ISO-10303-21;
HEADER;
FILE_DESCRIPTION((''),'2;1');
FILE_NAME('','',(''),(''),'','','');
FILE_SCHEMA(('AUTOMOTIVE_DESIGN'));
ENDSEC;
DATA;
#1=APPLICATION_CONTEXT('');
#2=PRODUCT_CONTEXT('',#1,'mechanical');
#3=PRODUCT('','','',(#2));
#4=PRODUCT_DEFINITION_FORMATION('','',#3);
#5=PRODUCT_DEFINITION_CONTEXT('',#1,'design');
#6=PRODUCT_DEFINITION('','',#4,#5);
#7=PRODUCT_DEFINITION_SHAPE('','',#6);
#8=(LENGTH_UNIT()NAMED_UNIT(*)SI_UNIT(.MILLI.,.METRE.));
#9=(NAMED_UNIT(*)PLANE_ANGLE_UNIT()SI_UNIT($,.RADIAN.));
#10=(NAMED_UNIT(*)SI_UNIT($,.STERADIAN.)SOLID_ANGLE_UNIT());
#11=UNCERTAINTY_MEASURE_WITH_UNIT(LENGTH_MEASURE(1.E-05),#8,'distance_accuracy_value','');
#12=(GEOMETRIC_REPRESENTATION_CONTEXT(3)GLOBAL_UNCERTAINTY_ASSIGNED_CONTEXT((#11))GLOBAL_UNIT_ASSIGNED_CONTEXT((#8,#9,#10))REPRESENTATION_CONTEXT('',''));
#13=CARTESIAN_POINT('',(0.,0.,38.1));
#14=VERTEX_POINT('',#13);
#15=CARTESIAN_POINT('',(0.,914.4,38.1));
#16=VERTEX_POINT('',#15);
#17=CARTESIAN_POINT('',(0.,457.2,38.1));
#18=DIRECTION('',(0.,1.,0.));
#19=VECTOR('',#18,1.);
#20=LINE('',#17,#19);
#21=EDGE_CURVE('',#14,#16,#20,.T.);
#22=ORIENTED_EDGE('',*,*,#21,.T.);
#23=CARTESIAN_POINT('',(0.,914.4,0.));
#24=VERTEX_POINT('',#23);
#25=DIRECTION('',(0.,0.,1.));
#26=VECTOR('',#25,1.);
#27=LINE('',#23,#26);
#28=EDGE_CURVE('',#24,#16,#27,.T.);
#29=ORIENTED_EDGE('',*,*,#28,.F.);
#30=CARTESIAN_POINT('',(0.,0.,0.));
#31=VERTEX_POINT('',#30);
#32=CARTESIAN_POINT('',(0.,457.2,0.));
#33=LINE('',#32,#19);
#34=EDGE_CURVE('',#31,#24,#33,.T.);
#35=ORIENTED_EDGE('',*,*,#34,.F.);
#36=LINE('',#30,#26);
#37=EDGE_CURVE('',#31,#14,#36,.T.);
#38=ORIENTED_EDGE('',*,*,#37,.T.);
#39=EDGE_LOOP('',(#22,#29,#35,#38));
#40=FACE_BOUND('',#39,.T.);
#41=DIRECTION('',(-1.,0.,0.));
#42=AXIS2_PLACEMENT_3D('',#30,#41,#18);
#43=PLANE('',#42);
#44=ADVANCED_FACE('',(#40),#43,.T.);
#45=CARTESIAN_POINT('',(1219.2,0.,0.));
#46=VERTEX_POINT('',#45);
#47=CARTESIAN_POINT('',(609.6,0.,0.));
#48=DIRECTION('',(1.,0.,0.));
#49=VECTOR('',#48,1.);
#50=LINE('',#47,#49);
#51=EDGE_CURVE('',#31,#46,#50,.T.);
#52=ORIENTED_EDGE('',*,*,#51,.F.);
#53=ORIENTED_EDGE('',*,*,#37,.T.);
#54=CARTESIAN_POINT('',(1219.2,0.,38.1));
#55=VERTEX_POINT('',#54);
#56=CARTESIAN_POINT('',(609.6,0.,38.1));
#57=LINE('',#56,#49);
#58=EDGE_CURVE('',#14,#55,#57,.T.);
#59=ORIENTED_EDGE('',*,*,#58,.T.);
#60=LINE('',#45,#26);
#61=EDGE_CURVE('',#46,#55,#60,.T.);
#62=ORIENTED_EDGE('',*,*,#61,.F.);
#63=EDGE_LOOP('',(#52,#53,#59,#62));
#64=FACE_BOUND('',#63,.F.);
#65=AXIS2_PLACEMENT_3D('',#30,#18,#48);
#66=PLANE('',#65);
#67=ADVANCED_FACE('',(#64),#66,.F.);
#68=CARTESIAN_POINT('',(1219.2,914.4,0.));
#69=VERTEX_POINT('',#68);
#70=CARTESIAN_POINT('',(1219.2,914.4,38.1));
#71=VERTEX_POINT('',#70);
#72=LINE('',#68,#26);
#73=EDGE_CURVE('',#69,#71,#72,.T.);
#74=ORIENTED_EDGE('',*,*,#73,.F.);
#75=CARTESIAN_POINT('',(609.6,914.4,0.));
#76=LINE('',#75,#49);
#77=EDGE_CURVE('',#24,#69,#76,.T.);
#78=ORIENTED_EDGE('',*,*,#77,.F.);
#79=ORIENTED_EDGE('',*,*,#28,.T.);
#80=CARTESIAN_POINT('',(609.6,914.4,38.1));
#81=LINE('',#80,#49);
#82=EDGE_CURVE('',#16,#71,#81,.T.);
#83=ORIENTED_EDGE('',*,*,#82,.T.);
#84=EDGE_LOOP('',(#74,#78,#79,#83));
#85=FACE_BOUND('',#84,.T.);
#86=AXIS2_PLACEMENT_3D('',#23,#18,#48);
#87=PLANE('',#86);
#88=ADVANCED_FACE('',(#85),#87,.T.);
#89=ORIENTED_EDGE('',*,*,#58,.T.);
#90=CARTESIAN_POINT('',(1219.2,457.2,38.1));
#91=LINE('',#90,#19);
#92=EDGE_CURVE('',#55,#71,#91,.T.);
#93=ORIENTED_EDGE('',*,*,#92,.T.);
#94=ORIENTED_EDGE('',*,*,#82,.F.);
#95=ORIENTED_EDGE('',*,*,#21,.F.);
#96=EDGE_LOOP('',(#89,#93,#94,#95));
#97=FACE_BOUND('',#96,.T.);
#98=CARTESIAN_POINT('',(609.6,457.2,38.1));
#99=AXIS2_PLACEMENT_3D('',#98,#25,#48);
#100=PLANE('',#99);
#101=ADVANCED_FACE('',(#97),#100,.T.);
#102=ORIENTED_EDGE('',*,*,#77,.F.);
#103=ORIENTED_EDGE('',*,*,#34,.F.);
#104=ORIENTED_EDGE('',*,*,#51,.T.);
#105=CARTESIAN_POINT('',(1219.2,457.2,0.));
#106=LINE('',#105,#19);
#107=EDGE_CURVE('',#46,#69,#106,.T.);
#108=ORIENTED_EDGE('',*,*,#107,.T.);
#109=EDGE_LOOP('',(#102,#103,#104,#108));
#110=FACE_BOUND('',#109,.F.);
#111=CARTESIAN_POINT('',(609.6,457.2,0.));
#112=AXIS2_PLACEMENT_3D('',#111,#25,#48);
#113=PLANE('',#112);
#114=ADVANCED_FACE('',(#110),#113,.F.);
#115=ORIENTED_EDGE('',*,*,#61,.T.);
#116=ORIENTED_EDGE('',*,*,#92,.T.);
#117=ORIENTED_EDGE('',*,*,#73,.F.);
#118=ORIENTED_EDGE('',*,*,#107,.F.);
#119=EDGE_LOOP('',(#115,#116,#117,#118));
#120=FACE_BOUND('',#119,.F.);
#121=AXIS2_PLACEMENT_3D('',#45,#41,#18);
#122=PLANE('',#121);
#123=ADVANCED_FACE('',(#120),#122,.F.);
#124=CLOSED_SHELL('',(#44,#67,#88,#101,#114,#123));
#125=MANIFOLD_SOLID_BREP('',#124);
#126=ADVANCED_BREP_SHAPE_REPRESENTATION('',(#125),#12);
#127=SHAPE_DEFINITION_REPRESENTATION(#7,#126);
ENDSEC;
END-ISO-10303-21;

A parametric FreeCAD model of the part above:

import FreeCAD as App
import Part
import Sketcher

V = App.Vector
Q = App.Units.Quantity

doc = App.newDocument("Part")
body = doc.addObject("PartDesign::Body", "Body")

sketch1 = doc.addObject("Sketcher::SketchObject", "Sketch")
body.addObject(sketch1)
sketch1.AttachmentSupport = (doc.XY_Plane, [""])
sketch1.MapMode = "FlatFace"
sketch1.addGeometry(Part.LineSegment(V(0, 0, 0), V(0, -89, 0)), False)
sketch1.addGeometry(Part.LineSegment(V(0, -89, 0), V(1829, -89, 0)), False)
sketch1.addGeometry(Part.LineSegment(V(1829, -89, 0), V(1829, 0, 0)), False)
sketch1.addGeometry(Part.LineSegment(V(1829, 0, 0), V(0, 0, 0)), False)
sketch1.addConstraint(Sketcher.Constraint("Coincident", 0, 2, 1, 1))
sketch1.addConstraint(Sketcher.Constraint("Coincident", 1, 2, 2, 1))
sketch1.addConstraint(Sketcher.Constraint("Coincident", 2, 2, 3, 1))
sketch1.addConstraint(Sketcher.Constraint("Coincident", 3, 2, 0, 1))
sketch1.addConstraint(Sketcher.Constraint("Vertical", 0))
sketch1.addConstraint(Sketcher.Constraint("Horizontal", 1))
sketch1.addConstraint(Sketcher.Constraint("Vertical", 2))
sketch1.addConstraint(Sketcher.Constraint("Horizontal", 3))
sketch1.addConstraint(Sketcher.Constraint("Coincident", 3, 2, -1, 1))
sketch1.addConstraint(Sketcher.Constraint("DistanceX", 1, 1, 1, 2, Q("72 in")))
sketch1.addConstraint(Sketcher.Constraint("DistanceY", 0, 2, 0, 1, Q("3.5 in")))
pad1 = doc.addObject("PartDesign::Pad", "Pad")
body.addObject(pad1)
pad1.Profile = sketch1
pad1.Length = Q("1.5 in")
body2 = doc.addObject("PartDesign::Body", "Body001")

sketch2 = doc.addObject("Sketcher::SketchObject", "Sketch001")
body2.addObject(sketch2)
sketch2.AttachmentSupport = (doc.getObject("XY_Plane001"), [""])
sketch2.MapMode = "FlatFace"
sketch2.addGeometry(Part.LineSegment(V(0, 914, 0), V(0, 0, 0)), False)
sketch2.addGeometry(Part.LineSegment(V(0, 0, 0), V(1219, 0, 0)), False)
sketch2.addGeometry(Part.LineSegment(V(1219, 0, 0), V(1219, 914, 0)), False)
sketch2.addGeometry(Part.LineSegment(V(1219, 914, 0), V(0, 914, 0)), False)
sketch2.addConstraint(Sketcher.Constraint("Coincident", 0, 2, 1, 1))
sketch2.addConstraint(Sketcher.Constraint("Coincident", 1, 2, 2, 1))
sketch2.addConstraint(Sketcher.Constraint("Coincident", 2, 2, 3, 1))
sketch2.addConstraint(Sketcher.Constraint("Coincident", 3, 2, 0, 1))
sketch2.addConstraint(Sketcher.Constraint("Vertical", 0))
sketch2.addConstraint(Sketcher.Constraint("Horizontal", 1))
sketch2.addConstraint(Sketcher.Constraint("Vertical", 2))
sketch2.addConstraint(Sketcher.Constraint("Horizontal", 3))
sketch2.addConstraint(Sketcher.Constraint("Coincident", 0, 2, -1, 1))
sketch2.addConstraint(Sketcher.Constraint("DistanceX", 1, 1, 1, 2, Q("48 in")))
sketch2.addConstraint(Sketcher.Constraint("DistanceY", 0, 2, 0, 1, Q("36 in")))
pad2 = doc.addObject("PartDesign::Pad", "Pad001")
body2.addObject(pad2)
pad2.Profile = sketch2
pad2.Length = Q("1.5 in")
body.Visibility = False

doc.recompute()
